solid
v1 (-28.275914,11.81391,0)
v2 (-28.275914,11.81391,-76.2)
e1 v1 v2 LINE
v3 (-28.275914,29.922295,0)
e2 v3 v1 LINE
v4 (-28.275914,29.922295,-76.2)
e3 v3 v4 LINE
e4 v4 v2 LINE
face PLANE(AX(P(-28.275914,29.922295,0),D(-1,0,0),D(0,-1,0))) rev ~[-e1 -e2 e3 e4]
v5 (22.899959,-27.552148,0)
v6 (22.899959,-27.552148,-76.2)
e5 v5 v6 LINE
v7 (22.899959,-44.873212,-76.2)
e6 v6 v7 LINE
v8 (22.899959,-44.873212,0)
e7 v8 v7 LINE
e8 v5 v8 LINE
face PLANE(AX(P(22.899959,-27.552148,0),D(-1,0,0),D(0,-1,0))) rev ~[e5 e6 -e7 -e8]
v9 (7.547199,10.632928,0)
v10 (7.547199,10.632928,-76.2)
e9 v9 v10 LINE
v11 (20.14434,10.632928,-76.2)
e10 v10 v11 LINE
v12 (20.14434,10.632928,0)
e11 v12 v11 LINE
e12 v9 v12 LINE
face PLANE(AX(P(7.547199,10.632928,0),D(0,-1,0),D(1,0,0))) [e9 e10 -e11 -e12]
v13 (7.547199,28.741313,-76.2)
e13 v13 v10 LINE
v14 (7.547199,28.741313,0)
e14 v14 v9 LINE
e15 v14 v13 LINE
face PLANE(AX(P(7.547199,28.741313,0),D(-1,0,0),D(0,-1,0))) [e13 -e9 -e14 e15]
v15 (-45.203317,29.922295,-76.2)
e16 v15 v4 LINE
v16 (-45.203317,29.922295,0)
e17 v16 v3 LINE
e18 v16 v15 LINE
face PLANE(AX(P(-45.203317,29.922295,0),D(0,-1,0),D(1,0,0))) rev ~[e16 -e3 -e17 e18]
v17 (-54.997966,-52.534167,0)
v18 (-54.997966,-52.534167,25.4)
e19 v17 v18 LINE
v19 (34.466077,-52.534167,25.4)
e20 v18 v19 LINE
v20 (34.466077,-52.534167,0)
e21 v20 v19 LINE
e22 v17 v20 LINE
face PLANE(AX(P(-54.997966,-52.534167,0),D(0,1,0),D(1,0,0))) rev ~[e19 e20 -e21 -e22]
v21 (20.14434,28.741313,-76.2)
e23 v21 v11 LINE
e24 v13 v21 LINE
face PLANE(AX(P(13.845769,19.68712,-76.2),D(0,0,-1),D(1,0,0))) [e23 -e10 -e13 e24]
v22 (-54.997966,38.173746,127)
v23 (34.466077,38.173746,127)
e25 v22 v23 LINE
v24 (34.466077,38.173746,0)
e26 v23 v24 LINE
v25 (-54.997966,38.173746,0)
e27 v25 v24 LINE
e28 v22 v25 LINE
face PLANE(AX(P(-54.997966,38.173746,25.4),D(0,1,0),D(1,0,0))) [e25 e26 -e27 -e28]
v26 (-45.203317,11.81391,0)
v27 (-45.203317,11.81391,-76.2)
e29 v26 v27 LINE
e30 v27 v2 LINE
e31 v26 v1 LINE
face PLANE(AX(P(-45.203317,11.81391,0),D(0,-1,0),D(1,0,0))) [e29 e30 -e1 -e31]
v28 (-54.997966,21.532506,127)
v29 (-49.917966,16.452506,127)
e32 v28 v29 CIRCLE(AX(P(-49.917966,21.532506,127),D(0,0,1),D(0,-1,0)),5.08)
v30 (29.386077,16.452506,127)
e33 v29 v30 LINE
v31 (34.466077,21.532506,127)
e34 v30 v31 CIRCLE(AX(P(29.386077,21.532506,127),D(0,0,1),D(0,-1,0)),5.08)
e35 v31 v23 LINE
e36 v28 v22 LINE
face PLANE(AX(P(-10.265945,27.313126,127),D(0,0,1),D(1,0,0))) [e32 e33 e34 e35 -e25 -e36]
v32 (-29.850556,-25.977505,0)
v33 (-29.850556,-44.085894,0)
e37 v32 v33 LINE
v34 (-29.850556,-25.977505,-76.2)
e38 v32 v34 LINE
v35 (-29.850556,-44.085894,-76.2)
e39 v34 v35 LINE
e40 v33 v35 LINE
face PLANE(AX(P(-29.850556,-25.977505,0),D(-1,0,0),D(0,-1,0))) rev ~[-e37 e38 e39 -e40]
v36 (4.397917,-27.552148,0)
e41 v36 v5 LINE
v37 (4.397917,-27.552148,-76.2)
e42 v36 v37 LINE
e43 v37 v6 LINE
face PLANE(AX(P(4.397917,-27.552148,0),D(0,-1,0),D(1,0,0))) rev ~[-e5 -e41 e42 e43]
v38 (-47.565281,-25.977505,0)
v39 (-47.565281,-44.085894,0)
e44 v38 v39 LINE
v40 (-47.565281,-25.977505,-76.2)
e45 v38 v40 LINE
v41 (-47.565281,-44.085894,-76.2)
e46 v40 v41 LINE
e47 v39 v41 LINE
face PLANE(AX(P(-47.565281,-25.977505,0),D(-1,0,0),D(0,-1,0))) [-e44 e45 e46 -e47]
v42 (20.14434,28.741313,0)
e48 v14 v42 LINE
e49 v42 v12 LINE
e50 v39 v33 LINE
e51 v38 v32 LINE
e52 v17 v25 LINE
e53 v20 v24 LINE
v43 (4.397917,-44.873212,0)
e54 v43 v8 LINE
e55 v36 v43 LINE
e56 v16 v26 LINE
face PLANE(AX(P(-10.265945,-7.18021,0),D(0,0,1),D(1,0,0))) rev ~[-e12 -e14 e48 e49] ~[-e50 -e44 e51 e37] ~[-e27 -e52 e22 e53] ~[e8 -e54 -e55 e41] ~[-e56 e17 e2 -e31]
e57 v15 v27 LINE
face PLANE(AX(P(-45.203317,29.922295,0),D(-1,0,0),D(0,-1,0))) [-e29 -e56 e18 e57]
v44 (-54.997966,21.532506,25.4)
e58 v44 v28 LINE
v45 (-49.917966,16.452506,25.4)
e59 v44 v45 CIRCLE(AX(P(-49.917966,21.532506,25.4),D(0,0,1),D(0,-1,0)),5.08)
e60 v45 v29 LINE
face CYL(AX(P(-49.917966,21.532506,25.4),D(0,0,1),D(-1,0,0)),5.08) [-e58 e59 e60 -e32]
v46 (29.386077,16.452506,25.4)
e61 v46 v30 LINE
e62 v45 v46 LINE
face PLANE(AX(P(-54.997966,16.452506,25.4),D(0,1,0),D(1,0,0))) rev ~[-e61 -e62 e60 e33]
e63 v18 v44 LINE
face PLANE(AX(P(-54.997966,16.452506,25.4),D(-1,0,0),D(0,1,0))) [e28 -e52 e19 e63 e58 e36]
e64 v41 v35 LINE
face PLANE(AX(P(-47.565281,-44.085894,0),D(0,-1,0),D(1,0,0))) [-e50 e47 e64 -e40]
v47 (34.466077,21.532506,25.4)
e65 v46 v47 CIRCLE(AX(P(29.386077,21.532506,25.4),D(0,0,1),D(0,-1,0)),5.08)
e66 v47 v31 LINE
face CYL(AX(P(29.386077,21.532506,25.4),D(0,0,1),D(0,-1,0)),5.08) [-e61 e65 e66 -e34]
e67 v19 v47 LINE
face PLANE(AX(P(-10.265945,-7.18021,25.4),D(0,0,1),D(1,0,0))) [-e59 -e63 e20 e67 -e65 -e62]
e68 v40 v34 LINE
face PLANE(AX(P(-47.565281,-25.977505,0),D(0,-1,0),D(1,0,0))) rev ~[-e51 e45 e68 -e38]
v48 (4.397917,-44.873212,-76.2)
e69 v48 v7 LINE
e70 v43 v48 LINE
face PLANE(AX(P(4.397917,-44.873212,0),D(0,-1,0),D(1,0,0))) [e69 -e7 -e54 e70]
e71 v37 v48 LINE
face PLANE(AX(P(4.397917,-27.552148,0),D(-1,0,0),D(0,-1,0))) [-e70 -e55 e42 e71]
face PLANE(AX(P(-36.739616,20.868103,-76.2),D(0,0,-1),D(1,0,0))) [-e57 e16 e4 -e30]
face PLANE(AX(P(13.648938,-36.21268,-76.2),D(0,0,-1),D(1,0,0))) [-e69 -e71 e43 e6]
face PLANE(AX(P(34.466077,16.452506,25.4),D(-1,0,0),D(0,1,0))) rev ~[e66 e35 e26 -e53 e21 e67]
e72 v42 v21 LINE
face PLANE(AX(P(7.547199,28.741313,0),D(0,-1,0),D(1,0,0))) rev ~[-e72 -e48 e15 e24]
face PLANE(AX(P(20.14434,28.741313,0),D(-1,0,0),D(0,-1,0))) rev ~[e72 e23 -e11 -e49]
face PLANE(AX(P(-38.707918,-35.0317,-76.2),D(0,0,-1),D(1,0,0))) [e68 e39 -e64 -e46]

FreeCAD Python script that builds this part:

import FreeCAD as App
import Part
import Sketcher

V = App.Vector
Q = App.Units.Quantity


def edges_at(feature, points):
    """Names of the edges that pass closest to the given points."""
    edges = feature.Shape.Edges
    near = lambda p: min(range(len(edges)), key=lambda i: edges[i].distToShape(Part.Vertex(*p))[0])
    return sorted({f"Edge{near(p) + 1}" for p in points})


def add_polygon(sketch, points):
    """Adds a closed chain of lines whose ends are joined by coincident constraints."""
    first, n = sketch.GeometryCount, len(points)
    for a, b in zip(points, points[1:] + points[:1]):
        sketch.addGeometry(Part.LineSegment(App.Vector(*a, 0), App.Vector(*b, 0)), False)
    for i in range(n):
        sketch.addConstraint(Sketcher.Constraint("Coincident", first + i, 2, first + (i + 1) % n, 1))

doc = App.newDocument("Part")
body = doc.addObject("PartDesign::Body", "Body")

sketch1 = body.newObject("Sketcher::SketchObject", "Sketch")
sketch1.AttachmentSupport = (doc.getObject("XY_Plane"), [""])
sketch1.MapMode = "FlatFace"
add_polygon(sketch1, [(-54.997966, 38.173746), (-54.997966, -52.534167), (34.466077, -52.534167), (34.466077, 38.173746)])
sketch1.addConstraint(Sketcher.Constraint("Vertical", 0))
sketch1.addConstraint(Sketcher.Constraint("Horizontal", 1))
sketch1.addConstraint(Sketcher.Constraint("Vertical", 2))
sketch1.addConstraint(Sketcher.Constraint("Horizontal", 3))
sketch1.addConstraint(Sketcher.Constraint("DistanceX", 1, 1, 1, 2, Q("89.464042 mm")))
sketch1.addConstraint(Sketcher.Constraint("DistanceY", 0, 2, 0, 1, Q("90.707913 mm")))
sketch1.addConstraint(Sketcher.Constraint("DistanceX", 0, 2, -1, 1, Q("54.997966 mm")))
sketch1.addConstraint(Sketcher.Constraint("DistanceY", 0, 2, -1, 1, Q("52.534167 mm")))
pad1 = body.newObject("PartDesign::Pad", "Pad")
pad1.Profile = sketch1
pad1.Length = Q("1 in")

sketch2 = body.newObject("Sketcher::SketchObject", "Sketch001")
sketch2.AttachmentSupport = (doc.getObject("XY_Plane"), [""])
sketch2.MapMode = "FlatFace"
sketch2.AttachmentOffset = App.Placement(V(0, 0, 1 * 25.4), App.Rotation())
add_polygon(sketch2, [(-54.997966, 38.173746), (-54.997966, 16.452506), (34.466077, 16.452506), (34.466077, 38.173746)])
sketch2.addConstraint(Sketcher.Constraint("Vertical", 0))
sketch2.addConstraint(Sketcher.Constraint("Horizontal", 1))
sketch2.addConstraint(Sketcher.Constraint("Vertical", 2))
sketch2.addConstraint(Sketcher.Constraint("Horizontal", 3))
sketch2.addConstraint(Sketcher.Constraint("DistanceY", 0, 2, 0, 1, Q("21.72124 mm")))
sketch2.addConstraint(Sketcher.Constraint("DistanceX", 1, 1, 1, 2, Q("89.464042 mm")))
sketch2.addConstraint(Sketcher.Constraint("DistanceX", 0, 2, -1, 1, Q("54.997966 mm")))
sketch2.addConstraint(Sketcher.Constraint("DistanceY", -1, 1, 0, 2, Q("16.452506 mm")))
pad2 = body.newObject("PartDesign::Pad", "Pad001")
pad2.Profile = sketch2
pad2.Length = Q("4 in")

sketch3 = body.newObject("Sketcher::SketchObject", "Sketch002")
sketch3.AttachmentSupport = (doc.getObject("XY_Plane"), [""])
sketch3.MapMode = "FlatFace"
add_polygon(sketch3, [(-47.565281, -44.085894), (-47.565281, -25.977505), (-29.850556, -25.977505), (-29.850556, -44.085894)])
add_polygon(sketch3, [(4.397917, -44.873212), (4.397917, -27.552148), (22.899959, -27.552148), (22.899959, -44.873212)])
add_polygon(sketch3, [(7.547199, 10.632928), (7.547199, 28.741313), (20.14434, 28.741313), (20.14434, 10.632928)])
add_polygon(sketch3, [(-45.203317, 11.81391), (-45.203317, 29.922295), (-28.275914, 29.922295), (-28.275914, 11.81391)])
sketch3.addConstraint(Sketcher.Constraint("Vertical", 0))
sketch3.addConstraint(Sketcher.Constraint("Horizontal", 1))
sketch3.addConstraint(Sketcher.Constraint("Vertical", 2))
sketch3.addConstraint(Sketcher.Constraint("Horizontal", 3))
sketch3.addConstraint(Sketcher.Constraint("Vertical", 4))
sketch3.addConstraint(Sketcher.Constraint("Horizontal", 5))
sketch3.addConstraint(Sketcher.Constraint("Vertical", 6))
sketch3.addConstraint(Sketcher.Constraint("Horizontal", 7))
sketch3.addConstraint(Sketcher.Constraint("Vertical", 8))
sketch3.addConstraint(Sketcher.Constraint("Horizontal", 9))
sketch3.addConstraint(Sketcher.Constraint("Vertical", 10))
sketch3.addConstraint(Sketcher.Constraint("Horizontal", 11))
sketch3.addConstraint(Sketcher.Constraint("Vertical", 12))
sketch3.addConstraint(Sketcher.Constraint("Horizontal", 13))
sketch3.addConstraint(Sketcher.Constraint("Vertical", 14))
sketch3.addConstraint(Sketcher.Constraint("Horizontal", 15))
sketch3.addConstraint(Sketcher.Constraint("Equal", 10, 12))
sketch3.addConstraint(Sketcher.Constraint("DistanceX", 9, 1, 9, 2, Q("12.597141 mm")))
sketch3.addConstraint(Sketcher.Constraint("DistanceY", 0, 1, 0, 2, Q("18.108388 mm")))
sketch3.addConstraint(Sketcher.Constraint("DistanceX", -1, 1, 8, 2, Q("7.547199 mm")))
sketch3.addConstraint(Sketcher.Constraint("DistanceX", 0, 2, 4, 2, Q("51.963198 mm")))
sketch3.addConstraint(Sketcher.Constraint("DistanceY", 0, 2, 12, 2, Q("55.899801 mm")))
sketch3.addConstraint(Sketcher.Constraint("DistanceX", 1, 1, 1, 2, Q("17.714726 mm")))
sketch3.addConstraint(Sketcher.Constraint("DistanceX", 5, 1, 5, 2, Q("18.502042 mm")))
sketch3.addConstraint(Sketcher.Constraint("DistanceX", 13, 1, 13, 2, Q("16.927402 mm")))
sketch3.addConstraint(Sketcher.Constraint("DistanceY", 4, 1, 4, 2, Q("17.321063 mm")))
sketch3.addConstraint(Sketcher.Constraint("DistanceY", 8, 1, 8, 2, Q("18.108386 mm")))
sketch3.addConstraint(Sketcher.Constraint("DistanceX", 0, 2, -1, 1, Q("47.565281 mm")))
sketch3.addConstraint(Sketcher.Constraint("DistanceY", 4, 2, -1, 1, Q("27.552148 mm")))
sketch3.addConstraint(Sketcher.Constraint("DistanceY", -1, 1, 14, 2, Q("11.81391 mm")))
sketch3.addConstraint(Sketcher.Constraint("DistanceY", 4, 2, 8, 2, Q("56.293461 mm")))
sketch3.addConstraint(Sketcher.Constraint("DistanceX", 12, 2, 1, 2, Q("15.352761 mm")))
pad3 = body.newObject("PartDesign::Pad", "Pad002")
pad3.Profile = sketch3
pad3.Length = Q("3 in")
pad3.Reversed = True
doc.recompute()

fillet = body.newObject("PartDesign::Fillet", "Fillet")
fillet.Base = (pad3, edges_at(pad3, [(34.466, 16.453, 76.2), (-54.998, 16.453, 76.2)]))
fillet.Radius = Q("0.2 in")

doc.recompute()
